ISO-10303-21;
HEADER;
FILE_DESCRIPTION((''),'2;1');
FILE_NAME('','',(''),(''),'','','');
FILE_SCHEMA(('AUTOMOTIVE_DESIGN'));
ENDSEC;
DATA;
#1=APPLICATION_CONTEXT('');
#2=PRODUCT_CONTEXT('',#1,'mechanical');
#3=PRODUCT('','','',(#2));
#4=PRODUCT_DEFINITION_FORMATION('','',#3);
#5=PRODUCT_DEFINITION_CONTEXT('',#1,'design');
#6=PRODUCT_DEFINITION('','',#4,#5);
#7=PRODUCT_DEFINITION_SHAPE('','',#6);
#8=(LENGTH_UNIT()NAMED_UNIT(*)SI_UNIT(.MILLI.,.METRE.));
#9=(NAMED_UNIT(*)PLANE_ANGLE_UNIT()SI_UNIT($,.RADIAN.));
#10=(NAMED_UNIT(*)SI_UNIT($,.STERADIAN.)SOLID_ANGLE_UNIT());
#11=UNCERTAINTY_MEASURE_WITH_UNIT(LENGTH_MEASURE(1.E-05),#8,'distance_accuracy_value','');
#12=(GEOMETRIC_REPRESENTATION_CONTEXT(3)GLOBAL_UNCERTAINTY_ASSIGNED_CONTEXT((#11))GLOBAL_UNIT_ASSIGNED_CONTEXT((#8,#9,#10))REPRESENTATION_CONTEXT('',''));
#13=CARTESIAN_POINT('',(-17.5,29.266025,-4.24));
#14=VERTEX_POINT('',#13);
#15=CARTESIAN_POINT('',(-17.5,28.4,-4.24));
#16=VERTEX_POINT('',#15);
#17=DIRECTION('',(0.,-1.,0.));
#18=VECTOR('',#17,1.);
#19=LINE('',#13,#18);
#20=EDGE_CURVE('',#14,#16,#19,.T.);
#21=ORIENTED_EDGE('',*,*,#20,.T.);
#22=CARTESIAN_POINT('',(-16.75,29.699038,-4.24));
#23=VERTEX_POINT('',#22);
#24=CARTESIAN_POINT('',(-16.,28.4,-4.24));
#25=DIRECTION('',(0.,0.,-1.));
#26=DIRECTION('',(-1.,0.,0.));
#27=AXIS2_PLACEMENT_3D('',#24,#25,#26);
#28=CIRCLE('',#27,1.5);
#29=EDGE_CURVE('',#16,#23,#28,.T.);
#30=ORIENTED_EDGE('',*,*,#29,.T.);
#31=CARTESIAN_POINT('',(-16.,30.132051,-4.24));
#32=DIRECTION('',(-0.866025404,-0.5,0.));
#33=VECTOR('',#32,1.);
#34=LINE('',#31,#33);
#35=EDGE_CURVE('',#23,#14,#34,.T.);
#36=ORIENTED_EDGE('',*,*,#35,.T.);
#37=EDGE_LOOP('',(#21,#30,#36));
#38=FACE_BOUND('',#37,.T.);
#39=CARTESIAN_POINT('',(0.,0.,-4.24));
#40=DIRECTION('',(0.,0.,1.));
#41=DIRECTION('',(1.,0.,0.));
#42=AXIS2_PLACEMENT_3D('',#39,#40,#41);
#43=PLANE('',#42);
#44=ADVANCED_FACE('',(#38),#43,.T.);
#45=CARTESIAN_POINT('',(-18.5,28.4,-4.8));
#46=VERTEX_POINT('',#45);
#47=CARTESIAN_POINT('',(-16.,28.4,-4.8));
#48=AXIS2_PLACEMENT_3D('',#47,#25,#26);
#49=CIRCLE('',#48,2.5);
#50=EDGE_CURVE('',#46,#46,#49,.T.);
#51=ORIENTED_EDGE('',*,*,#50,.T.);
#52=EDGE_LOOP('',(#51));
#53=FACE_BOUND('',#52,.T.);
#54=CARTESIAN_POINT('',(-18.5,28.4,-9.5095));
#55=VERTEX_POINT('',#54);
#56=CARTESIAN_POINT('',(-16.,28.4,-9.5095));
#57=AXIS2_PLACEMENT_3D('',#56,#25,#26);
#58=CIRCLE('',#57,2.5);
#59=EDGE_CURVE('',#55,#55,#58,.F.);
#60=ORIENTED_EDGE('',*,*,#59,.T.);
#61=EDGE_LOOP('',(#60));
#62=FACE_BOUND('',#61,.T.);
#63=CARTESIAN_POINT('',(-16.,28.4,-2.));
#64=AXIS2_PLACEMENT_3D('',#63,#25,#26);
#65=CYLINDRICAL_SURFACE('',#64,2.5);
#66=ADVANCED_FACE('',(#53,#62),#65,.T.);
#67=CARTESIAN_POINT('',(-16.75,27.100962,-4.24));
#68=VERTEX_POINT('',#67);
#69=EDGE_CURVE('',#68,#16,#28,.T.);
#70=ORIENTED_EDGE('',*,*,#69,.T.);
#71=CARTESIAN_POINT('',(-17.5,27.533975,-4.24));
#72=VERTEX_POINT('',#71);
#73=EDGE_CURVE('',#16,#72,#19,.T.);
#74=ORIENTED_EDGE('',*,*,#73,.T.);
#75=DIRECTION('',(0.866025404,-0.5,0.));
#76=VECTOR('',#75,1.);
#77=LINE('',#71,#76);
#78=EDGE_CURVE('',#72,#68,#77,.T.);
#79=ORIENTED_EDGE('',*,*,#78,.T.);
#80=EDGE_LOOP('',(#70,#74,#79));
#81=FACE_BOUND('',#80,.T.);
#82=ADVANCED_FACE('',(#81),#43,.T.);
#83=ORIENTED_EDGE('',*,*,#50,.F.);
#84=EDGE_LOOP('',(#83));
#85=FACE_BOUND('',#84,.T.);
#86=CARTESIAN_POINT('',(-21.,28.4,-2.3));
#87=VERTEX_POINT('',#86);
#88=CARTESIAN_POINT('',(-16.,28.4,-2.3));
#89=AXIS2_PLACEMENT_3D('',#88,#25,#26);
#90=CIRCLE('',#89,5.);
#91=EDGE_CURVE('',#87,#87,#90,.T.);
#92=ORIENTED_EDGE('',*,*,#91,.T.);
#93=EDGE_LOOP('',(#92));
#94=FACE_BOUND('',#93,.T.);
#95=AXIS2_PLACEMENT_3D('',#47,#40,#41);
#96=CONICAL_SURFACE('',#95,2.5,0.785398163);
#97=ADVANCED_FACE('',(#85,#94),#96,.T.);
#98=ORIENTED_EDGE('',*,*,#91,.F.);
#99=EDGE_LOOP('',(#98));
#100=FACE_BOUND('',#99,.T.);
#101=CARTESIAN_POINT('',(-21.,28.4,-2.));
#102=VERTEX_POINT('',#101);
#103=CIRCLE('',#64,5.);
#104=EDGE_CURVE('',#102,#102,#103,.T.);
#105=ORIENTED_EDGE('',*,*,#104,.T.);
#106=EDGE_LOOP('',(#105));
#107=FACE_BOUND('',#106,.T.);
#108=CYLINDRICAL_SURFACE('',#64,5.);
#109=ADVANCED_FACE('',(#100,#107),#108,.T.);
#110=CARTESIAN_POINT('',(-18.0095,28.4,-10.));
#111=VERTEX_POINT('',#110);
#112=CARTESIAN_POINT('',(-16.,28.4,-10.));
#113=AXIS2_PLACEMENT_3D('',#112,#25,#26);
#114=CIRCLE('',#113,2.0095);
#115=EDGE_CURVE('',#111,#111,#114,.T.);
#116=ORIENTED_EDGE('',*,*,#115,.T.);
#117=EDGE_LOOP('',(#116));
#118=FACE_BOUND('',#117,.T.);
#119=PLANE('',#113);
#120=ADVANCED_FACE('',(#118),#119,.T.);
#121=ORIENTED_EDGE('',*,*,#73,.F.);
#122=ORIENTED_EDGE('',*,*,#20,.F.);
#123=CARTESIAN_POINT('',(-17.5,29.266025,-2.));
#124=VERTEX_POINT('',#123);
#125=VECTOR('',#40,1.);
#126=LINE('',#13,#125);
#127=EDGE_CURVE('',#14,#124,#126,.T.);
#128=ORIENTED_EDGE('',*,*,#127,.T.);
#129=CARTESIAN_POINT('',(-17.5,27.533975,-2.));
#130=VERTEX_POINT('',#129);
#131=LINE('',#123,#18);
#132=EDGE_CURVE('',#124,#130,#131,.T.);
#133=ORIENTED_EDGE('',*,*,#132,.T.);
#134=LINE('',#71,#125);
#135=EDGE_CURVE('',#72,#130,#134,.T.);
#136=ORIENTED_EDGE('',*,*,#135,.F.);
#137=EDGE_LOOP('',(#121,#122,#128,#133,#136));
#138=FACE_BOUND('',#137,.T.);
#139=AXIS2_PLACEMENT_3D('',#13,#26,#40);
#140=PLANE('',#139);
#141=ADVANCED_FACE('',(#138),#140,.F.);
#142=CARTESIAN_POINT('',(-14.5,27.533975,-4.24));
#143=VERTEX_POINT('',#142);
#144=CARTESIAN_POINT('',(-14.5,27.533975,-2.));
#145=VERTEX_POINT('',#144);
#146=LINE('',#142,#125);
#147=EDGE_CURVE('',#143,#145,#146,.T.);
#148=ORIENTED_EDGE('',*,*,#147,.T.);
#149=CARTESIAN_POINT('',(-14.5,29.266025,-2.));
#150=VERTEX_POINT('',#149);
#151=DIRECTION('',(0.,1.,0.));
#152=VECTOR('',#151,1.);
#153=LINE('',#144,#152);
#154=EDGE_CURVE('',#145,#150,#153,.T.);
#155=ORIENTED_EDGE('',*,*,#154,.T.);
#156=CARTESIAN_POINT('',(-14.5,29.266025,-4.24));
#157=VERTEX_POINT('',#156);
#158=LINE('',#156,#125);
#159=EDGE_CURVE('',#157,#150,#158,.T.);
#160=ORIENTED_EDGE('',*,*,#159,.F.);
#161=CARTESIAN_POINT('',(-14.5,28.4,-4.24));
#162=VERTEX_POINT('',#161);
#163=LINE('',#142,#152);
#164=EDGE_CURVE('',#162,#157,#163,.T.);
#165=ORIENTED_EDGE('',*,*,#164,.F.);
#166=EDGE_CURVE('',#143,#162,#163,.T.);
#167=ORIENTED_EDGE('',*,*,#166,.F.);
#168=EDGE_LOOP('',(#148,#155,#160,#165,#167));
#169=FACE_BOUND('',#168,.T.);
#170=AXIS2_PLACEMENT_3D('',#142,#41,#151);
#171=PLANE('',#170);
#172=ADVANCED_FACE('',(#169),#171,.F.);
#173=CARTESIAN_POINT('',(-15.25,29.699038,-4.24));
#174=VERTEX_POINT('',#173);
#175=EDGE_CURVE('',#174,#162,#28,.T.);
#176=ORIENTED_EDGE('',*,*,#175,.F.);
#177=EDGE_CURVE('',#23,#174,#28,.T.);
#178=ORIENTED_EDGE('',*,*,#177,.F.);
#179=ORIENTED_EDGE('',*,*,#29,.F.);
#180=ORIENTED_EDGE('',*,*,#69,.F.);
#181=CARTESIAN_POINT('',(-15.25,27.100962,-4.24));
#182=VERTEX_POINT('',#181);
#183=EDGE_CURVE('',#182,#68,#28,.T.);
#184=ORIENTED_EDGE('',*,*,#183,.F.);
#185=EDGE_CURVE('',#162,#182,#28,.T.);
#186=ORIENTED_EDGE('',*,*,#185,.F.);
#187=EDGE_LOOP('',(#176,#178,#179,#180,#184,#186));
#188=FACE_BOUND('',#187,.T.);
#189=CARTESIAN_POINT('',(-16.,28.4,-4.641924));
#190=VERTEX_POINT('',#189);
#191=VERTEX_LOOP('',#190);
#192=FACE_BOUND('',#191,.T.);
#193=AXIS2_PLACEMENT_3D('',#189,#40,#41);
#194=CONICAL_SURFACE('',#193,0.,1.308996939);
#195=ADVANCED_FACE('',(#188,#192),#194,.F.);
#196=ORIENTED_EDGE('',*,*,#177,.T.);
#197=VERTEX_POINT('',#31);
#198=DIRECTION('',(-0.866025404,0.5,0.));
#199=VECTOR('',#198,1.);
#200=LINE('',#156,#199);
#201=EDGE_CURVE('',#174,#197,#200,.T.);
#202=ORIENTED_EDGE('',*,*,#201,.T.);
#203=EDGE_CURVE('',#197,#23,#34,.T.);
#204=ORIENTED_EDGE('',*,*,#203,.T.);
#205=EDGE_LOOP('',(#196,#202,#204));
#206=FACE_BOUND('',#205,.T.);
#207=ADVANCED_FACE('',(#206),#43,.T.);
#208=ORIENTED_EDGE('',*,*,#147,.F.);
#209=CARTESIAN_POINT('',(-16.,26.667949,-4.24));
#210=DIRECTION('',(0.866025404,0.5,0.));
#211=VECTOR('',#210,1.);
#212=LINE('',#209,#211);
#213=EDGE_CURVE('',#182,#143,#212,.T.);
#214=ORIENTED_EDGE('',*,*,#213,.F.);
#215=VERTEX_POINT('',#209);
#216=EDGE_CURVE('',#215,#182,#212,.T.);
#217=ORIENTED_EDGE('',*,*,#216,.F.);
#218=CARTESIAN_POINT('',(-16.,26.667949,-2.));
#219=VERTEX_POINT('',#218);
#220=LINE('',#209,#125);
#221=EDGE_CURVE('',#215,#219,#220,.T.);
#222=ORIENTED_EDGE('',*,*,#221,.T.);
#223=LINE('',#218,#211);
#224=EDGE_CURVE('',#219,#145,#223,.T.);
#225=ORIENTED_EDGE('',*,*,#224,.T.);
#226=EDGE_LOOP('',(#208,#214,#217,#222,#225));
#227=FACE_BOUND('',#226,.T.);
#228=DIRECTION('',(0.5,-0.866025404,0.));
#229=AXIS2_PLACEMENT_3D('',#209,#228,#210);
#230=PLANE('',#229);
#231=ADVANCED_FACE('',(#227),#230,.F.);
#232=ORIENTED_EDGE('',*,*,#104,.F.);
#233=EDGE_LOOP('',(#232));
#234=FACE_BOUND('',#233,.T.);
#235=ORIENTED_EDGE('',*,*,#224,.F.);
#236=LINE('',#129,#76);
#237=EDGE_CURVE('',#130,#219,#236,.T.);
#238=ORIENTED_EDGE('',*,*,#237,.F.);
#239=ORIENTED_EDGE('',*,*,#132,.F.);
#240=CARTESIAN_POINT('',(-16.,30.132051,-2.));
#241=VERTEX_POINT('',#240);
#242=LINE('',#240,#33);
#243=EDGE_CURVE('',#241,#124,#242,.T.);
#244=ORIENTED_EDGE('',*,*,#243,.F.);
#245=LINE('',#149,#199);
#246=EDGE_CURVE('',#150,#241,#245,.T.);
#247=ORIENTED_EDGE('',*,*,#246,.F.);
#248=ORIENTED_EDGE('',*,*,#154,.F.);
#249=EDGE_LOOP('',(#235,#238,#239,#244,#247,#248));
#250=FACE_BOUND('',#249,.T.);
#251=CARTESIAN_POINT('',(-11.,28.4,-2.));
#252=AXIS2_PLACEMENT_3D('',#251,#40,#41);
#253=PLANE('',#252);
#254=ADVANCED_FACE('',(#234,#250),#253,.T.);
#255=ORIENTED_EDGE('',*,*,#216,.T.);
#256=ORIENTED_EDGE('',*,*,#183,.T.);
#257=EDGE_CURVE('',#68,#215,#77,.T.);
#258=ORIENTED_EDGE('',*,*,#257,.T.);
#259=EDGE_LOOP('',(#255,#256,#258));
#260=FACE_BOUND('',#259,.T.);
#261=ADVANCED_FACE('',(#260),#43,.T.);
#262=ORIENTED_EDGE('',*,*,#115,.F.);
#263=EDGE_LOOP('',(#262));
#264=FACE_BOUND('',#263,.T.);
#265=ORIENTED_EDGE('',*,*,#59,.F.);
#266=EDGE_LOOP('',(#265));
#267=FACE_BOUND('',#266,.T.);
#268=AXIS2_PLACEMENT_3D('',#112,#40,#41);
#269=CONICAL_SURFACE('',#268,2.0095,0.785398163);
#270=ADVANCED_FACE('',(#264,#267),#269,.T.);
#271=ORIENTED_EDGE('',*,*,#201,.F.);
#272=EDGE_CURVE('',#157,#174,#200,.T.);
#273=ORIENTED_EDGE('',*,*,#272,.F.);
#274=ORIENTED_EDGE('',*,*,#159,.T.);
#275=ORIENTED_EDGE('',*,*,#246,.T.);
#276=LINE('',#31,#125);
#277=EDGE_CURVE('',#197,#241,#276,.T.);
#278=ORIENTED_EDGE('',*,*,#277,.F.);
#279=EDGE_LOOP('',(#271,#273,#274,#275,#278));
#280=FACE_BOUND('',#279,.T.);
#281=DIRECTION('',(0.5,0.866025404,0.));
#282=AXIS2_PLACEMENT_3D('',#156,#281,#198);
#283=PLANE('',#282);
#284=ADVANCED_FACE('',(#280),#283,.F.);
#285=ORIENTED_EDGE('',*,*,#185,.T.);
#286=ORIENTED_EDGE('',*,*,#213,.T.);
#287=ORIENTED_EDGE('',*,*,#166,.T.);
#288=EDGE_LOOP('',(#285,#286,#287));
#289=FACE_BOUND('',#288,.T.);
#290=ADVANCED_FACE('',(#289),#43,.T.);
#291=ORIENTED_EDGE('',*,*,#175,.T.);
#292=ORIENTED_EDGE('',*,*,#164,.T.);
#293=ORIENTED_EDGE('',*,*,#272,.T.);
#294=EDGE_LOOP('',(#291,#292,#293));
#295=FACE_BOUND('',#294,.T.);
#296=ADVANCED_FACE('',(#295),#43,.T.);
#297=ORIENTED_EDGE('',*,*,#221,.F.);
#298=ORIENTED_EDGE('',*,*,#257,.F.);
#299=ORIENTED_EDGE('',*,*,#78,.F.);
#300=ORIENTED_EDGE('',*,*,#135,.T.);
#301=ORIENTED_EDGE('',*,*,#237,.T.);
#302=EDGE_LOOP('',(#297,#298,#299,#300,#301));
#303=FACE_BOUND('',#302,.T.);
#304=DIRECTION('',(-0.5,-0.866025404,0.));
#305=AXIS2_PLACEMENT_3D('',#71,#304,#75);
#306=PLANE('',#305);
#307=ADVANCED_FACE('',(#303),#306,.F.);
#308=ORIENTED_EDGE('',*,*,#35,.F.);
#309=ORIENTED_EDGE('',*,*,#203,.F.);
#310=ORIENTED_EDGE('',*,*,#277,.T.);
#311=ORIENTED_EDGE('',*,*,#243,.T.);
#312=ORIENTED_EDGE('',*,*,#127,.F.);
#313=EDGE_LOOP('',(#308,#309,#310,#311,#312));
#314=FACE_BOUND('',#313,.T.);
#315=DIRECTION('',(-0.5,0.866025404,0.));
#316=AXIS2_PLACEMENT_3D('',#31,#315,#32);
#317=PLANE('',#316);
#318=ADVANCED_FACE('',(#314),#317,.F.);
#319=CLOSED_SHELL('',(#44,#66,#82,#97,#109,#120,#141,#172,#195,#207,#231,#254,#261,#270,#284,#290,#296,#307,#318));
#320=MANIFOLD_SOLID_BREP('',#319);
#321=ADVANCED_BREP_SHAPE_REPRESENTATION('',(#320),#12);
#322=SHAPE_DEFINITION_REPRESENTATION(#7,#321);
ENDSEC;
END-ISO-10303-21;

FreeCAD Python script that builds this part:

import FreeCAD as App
import Part
import Sketcher
Q = App.Units.Quantity


def edges_at(feature, points):
    """Names of the edges that pass closest to the given points."""
    edges = feature.Shape.Edges
    near = lambda p: min(range(len(edges)), key=lambda i: edges[i].distToShape(Part.Vertex(*p))[0])
    return sorted({f"Edge{near(p) + 1}" for p in points})

doc = App.newDocument("Part")
body = doc.addObject("PartDesign::Body", "Body")

# Sketch on XZ plane
sketch1 = body.newObject("Sketcher::SketchObject", "Sketch")
sketch1.AttachmentSupport = (doc.getObject("XZ_Plane"), [""])
sketch1.MapMode = "FlatFace"
sketch1.AttachmentOffset = App.Placement(App.Vector(0, 0, -28.4), App.Rotation())
sketch1.addGeometry([
    Part.LineSegment(App.Vector(-11, -2, 0), App.Vector(-16, -2, 0)),  # 0
    Part.LineSegment(App.Vector(-16, -2, 0), App.Vector(-16, -10, 0)),  # 1
    Part.LineSegment(App.Vector(-16, -10, 0), App.Vector(-13.5, -10, 0)),  # 2
    Part.LineSegment(App.Vector(-13.5, -10, 0), App.Vector(-13.5, -4.8, 0)),  # 3
    Part.LineSegment(App.Vector(-13.5, -4.8, 0), App.Vector(-11, -2.3, 0)),  # 4
    Part.LineSegment(App.Vector(-11, -2.3, 0), App.Vector(-11, -2, 0)),  # 5
], False)
sketch1.addGeometry(Part.LineSegment(App.Vector(-16, -2, 0), App.Vector(-16, -10, 0)), True)  # axis
sketch1.addConstraint([
    Sketcher.Constraint("Coincident", 0, 2, 1, 1),
    Sketcher.Constraint("Coincident", 1, 2, 2, 1),
    Sketcher.Constraint("Coincident", 2, 2, 3, 1),
    Sketcher.Constraint("Coincident", 3, 2, 4, 1),
    Sketcher.Constraint("Coincident", 4, 2, 5, 1),
    Sketcher.Constraint("Coincident", 5, 2, 0, 1),
    Sketcher.Constraint("Horizontal", 0),
    Sketcher.Constraint("Vertical", 1),
    Sketcher.Constraint("Horizontal", 2),
    Sketcher.Constraint("Vertical", 3),
    Sketcher.Constraint("Vertical", 5),
    Sketcher.Constraint("Vertical", 6),
    Sketcher.Constraint("Coincident", 6, 1, 0, 2),
    Sketcher.Constraint("Horizontal", 2, 2, 6, 2),
    Sketcher.Constraint("DistanceX", 0, 2, 0, 1, Q("5 mm")),
    Sketcher.Constraint("DistanceY", 1, 2, 1, 1, Q("8 mm")),
    Sketcher.Constraint("Angle", 4, Q("45 deg")),
    Sketcher.Constraint("DistanceX", 2, 1, 2, 2, Q("2.5 mm")),
    Sketcher.Constraint("DistanceY", 3, 1, 3, 2, Q("5.2 mm")),
    Sketcher.Constraint("DistanceX", 0, 2, -1, 1, Q("16 mm")),
    Sketcher.Constraint("DistanceY", 0, 2, -1, 1, Q("2 mm")),
])
revolution = body.newObject("PartDesign::Revolution", "Revolution")
revolution.Profile = sketch1
revolution.ReferenceAxis = (sketch1, ["Axis0"])
revolution.Angle = 360

# Sketch on XY plane
sketch2 = body.newObject("Sketcher::SketchObject", "Sketch001")
sketch2.AttachmentSupport = (doc.getObject("XY_Plane"), [""])
sketch2.MapMode = "FlatFace"
sketch2.AttachmentOffset = App.Placement(App.Vector(0, 0, -2), App.Rotation())
sketch2.addGeometry([
    Part.LineSegment(App.Vector(-17.5, 29.3, 0), App.Vector(-17.5, 27.5, 0)),  # 0
    Part.LineSegment(App.Vector(-17.5, 27.5, 0), App.Vector(-16, 26.7, 0)),  # 1
    Part.LineSegment(App.Vector(-16, 26.7, 0), App.Vector(-14.5, 27.5, 0)),  # 2
    Part.LineSegment(App.Vector(-14.5, 27.5, 0), App.Vector(-14.5, 29.3, 0)),  # 3
    Part.LineSegment(App.Vector(-14.5, 29.3, 0), App.Vector(-16, 30.1, 0)),  # 4
    Part.LineSegment(App.Vector(-16, 30.1, 0), App.Vector(-17.5, 29.3, 0)),  # 5
], False)
sketch2.addConstraint([
    Sketcher.Constraint("Coincident", 0, 2, 1, 1),
    Sketcher.Constraint("Coincident", 1, 2, 2, 1),
    Sketcher.Constraint("Coincident", 2, 2, 3, 1),
    Sketcher.Constraint("Coincident", 3, 2, 4, 1),
    Sketcher.Constraint("Coincident", 4, 2, 5, 1),
    Sketcher.Constraint("Coincident", 5, 2, 0, 1),
    Sketcher.Constraint("Vertical", 0),
    Sketcher.Constraint("Vertical", 3),
    Sketcher.Constraint("Parallel", 1, 4),
    Sketcher.Constraint("Parallel", 2, 5),
    Sketcher.Constraint("Horizontal", 0, 2, 2, 2),
    Sketcher.Constraint("Horizontal", 3, 2, 5, 2),
    Sketcher.Constraint("Vertical", 1, 2, 4, 2),
    Sketcher.Constraint("Angle", 1, Q("-30 deg")),
    Sketcher.Constraint("DistanceX", 1, 2, -1, 1, Q("16 mm")),
    Sketcher.Constraint("DistanceX", 0, 2, 2, 2, Q("3 mm")),
    Sketcher.Constraint("DistanceY", 0, 2, 0, 1, Q("1.732051 mm")),
    Sketcher.Constraint("DistanceY", -1, 1, 1, 2, Q("26.667949 mm")),
])
pocket1 = body.newObject("PartDesign::Pocket", "Pocket")
pocket1.Profile = sketch2
pocket1.Length = 2.24

# Sketch on XZ plane
sketch3 = body.newObject("Sketcher::SketchObject", "Sketch002")
sketch3.AttachmentSupport = (doc.getObject("XZ_Plane"), [""])
sketch3.MapMode = "FlatFace"
sketch3.AttachmentOffset = App.Placement(App.Vector(0, 0, -28.4), App.Rotation())
sketch3.addGeometry([
    Part.LineSegment(App.Vector(-14.5, -4.24, 0), App.Vector(-16, -4.24, 0)),
    Part.LineSegment(App.Vector(-16, -4.24, 0), App.Vector(-16, -4.64, 0)),
    Part.LineSegment(App.Vector(-16, -4.64, 0), App.Vector(-14.5, -4.24, 0)),
], False)
sketch3.addGeometry(Part.LineSegment(App.Vector(-16, -4.24, 0), App.Vector(-16, -4.64, 0)), True)  # axis
sketch3.addConstraint([
    Sketcher.Constraint("Coincident", 0, 2, 1, 1),
    Sketcher.Constraint("Coincident", 1, 2, 2, 1),
    Sketcher.Constraint("Coincident", 2, 2, 0, 1),
    Sketcher.Constraint("Horizontal", 0),
    Sketcher.Constraint("Vertical", 1),
    Sketcher.Constraint("Vertical", 3),
    Sketcher.Constraint("Coincident", 3, 1, 0, 2),
    Sketcher.Constraint("Equal", 1, 3),
    Sketcher.Constraint("Angle", 2, Q("15 deg")),
    Sketcher.Constraint("DistanceX", 0, 2, 0, 1, Q("1.5 mm")),
    Sketcher.Constraint("DistanceX", 0, 2, -1, 1, Q("16 mm")),
    Sketcher.Constraint("DistanceY", 0, 2, -1, 1, Q("4.24 mm")),
])
groove = body.newObject("PartDesign::Groove", "Groove")
groove.Profile = sketch3
groove.ReferenceAxis = (sketch3, ["Axis0"])
groove.Angle = 360
doc.recompute()

chamfer = body.newObject("PartDesign::Chamfer", "Chamfer")
chamfer.Base = (groove, edges_at(groove, [(-18.5, 28.4, -10)]))
chamfer.Size = 0.4905

doc.recompute()
